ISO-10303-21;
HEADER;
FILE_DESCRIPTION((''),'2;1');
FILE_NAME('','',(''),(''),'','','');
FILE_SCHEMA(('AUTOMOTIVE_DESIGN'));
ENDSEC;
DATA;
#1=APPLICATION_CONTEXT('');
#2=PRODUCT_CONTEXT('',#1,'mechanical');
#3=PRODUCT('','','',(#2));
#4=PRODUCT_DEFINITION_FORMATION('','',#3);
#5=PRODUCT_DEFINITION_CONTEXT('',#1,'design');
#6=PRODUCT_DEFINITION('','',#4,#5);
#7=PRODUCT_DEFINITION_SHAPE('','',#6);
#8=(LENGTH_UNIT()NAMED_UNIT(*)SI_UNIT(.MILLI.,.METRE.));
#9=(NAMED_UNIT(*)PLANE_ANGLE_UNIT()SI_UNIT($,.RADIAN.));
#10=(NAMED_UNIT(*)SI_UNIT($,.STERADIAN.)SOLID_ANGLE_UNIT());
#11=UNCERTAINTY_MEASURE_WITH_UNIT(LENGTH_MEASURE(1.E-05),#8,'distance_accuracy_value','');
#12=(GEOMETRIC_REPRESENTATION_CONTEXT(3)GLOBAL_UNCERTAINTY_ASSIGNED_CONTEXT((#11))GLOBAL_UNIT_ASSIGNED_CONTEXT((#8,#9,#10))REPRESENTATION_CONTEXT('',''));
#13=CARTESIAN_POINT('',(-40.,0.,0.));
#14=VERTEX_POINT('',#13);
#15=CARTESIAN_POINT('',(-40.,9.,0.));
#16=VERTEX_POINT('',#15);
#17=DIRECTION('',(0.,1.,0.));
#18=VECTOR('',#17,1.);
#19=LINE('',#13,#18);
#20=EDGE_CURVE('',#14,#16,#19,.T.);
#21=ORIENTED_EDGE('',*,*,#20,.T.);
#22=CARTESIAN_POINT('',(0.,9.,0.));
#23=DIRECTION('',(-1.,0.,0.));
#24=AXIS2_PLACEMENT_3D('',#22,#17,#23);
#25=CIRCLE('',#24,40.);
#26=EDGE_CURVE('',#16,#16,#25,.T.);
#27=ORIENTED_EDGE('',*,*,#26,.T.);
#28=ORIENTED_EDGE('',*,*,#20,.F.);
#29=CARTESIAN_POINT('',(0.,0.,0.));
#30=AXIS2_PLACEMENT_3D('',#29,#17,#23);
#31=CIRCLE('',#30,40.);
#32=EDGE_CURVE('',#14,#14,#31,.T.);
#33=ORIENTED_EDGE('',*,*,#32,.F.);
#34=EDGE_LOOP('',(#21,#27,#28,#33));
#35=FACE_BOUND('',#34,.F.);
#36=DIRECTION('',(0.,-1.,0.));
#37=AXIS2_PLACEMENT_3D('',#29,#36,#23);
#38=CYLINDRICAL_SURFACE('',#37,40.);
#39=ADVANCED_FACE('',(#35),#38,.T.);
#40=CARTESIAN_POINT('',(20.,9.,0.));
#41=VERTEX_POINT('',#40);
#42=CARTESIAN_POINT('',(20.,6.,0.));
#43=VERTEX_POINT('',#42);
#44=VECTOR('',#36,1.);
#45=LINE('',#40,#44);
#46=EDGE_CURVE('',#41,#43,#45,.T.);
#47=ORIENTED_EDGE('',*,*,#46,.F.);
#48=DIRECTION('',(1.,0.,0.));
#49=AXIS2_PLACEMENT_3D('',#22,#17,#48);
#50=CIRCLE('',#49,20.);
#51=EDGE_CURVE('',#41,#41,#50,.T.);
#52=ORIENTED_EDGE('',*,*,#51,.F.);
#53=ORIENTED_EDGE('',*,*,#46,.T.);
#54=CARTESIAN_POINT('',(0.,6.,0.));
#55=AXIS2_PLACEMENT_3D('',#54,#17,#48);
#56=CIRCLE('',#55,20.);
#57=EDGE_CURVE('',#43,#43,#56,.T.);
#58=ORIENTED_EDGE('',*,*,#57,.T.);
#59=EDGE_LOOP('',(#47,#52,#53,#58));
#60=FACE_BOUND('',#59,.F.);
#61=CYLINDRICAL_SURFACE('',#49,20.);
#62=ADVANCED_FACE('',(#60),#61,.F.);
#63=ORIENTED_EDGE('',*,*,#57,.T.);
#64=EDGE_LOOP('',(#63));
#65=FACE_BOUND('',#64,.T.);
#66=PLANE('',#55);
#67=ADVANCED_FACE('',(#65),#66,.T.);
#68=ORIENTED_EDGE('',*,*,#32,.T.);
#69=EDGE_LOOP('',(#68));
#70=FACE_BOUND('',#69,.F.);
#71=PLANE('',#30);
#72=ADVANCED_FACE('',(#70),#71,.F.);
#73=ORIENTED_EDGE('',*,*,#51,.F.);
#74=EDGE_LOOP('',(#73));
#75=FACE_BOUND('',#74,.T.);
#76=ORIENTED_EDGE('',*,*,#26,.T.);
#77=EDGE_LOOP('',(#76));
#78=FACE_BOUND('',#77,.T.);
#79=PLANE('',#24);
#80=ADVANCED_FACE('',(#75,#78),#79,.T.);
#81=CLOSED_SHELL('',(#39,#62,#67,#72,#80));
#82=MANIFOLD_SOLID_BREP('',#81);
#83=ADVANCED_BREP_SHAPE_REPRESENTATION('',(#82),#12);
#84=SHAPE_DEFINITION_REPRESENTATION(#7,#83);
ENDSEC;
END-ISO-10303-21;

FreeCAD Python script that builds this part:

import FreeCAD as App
import Part
import Sketcher

doc = App.newDocument("Part")
body = doc.addObject("PartDesign::Body", "Body")

# Sketch on XZ plane
sketch1 = doc.addObject("Sketcher::SketchObject", "Sketch")
body.addObject(sketch1)
sketch1.AttachmentSupport = (doc.XZ_Plane, [""])
sketch1.MapMode = "FlatFace"
sketch1.addGeometry(Part.Circle(App.Vector(0, 0, 0), App.Vector(0, 0, 1), 40), False)
sketch1.addConstraint(Sketcher.Constraint("Coincident", 0, 3, -1, 1))
sketch1.addConstraint(Sketcher.Constraint("Diameter", 0, 80.0))
pad1 = doc.addObject("PartDesign::Pad", "Pad")
body.addObject(pad1)
pad1.Profile = sketch1
pad1.Length = 9
pad1.Reversed = True

# Sketch on XZ plane
sketch2 = doc.addObject("Sketcher::SketchObject", "Sketch001")
body.addObject(sketch2)
sketch2.AttachmentSupport = (doc.XZ_Plane, [""])
sketch2.MapMode = "FlatFace"
sketch2.AttachmentOffset = App.Placement(App.Vector(0, 0, -9), App.Rotation())
sketch2.addGeometry(Part.Circle(App.Vector(0, 0, 0), App.Vector(0, 0, 1), 20), False)
sketch2.addConstraint(Sketcher.Constraint("Coincident", 0, 3, -1, 1))
sketch2.addConstraint(Sketcher.Constraint("Diameter", 0, 40.0))
pocket1 = doc.addObject("PartDesign::Pocket", "Pocket")
body.addObject(pocket1)
pocket1.Profile = sketch2
pocket1.Length = 3
pocket1.Reversed = True

doc.recompute()
